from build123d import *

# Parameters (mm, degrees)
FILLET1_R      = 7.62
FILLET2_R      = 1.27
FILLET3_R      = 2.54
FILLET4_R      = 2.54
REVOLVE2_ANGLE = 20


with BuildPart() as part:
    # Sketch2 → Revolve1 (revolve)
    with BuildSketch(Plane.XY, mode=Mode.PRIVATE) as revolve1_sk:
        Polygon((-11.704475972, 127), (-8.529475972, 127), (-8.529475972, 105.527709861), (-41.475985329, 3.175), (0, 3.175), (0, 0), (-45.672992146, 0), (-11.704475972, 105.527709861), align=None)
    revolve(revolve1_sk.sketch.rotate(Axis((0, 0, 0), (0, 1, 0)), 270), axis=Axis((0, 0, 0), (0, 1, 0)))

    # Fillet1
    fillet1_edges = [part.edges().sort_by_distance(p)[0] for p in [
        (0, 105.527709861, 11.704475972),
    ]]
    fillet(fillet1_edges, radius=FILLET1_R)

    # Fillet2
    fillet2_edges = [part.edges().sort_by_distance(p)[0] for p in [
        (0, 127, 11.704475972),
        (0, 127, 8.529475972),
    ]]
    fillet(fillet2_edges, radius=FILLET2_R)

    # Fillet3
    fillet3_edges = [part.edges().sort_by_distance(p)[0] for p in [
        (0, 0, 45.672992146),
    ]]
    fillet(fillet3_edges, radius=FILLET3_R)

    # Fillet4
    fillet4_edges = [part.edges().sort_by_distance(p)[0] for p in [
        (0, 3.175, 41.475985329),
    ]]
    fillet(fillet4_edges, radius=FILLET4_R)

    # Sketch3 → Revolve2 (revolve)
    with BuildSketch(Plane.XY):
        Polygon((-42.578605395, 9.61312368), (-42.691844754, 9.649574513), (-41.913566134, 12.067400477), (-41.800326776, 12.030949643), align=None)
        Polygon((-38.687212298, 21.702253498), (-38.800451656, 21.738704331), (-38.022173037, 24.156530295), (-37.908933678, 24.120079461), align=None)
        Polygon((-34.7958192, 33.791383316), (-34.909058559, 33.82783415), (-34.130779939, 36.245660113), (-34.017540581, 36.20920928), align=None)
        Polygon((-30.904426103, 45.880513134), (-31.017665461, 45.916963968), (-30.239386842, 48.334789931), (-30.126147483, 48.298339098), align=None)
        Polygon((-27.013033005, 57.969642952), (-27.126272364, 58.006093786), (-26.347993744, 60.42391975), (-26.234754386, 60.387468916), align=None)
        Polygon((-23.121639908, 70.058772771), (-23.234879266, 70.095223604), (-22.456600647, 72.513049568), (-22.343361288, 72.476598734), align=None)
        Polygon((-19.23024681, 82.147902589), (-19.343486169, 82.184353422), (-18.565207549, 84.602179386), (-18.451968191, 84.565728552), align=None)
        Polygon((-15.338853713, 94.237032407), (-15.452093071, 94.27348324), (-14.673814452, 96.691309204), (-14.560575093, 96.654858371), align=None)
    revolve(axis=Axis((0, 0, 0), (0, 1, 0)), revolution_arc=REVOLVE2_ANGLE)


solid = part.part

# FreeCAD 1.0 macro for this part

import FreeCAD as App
import Part
import Sketcher
from FreeCAD import Vector
Q = App.Units.Quantity


def edges_at(feature, points):
    """Names of the edges that pass closest to the given points."""
    edges = feature.Shape.Edges
    near = lambda p: min(range(len(edges)), key=lambda i: edges[i].distToShape(Part.Vertex(*p))[0])
    return sorted({f"Edge{near(p) + 1}" for p in points})


def add_polygon(sketch, points):
    """Adds a closed chain of lines whose ends are joined by coincident constraints."""
    first, n = sketch.GeometryCount, len(points)
    for a, b in zip(points, points[1:] + points[:1]):
        sketch.addGeometry(Part.LineSegment(App.Vector(*a, 0), App.Vector(*b, 0)), False)
    for i in range(n):
        sketch.addConstraint(Sketcher.Constraint("Coincident", first + i, 2, first + (i + 1) % n, 1))

doc = App.newDocument("Part")
body = doc.addObject("PartDesign::Body", "Body")

# Sketch on XY plane
sketch1 = body.newObject("Sketcher::SketchObject", "Sketch")
sketch1.AttachmentSupport = (doc.getObject("XY_Plane"), [""])
sketch1.MapMode = "FlatFace"
add_polygon(sketch1, [(-8.5, 127), (-11.7, 127), (-11.7, 105.5), (-45.7, 0), (0, 0), (0, 3.2), (-41.5, 3.2), (-8.5, 105.5)])  # lines 0-7
sketch1.addConstraint(Sketcher.Constraint("Horizontal", 0))
sketch1.addConstraint(Sketcher.Constraint("Vertical", 1))
sketch1.addConstraint(Sketcher.Constraint("Horizontal", 3))
sketch1.addConstraint(Sketcher.Constraint("Vertical", 4))
sketch1.addConstraint(Sketcher.Constraint("Horizontal", 5))
sketch1.addConstraint(Sketcher.Constraint("Vertical", 7))
sketch1.addConstraint(Sketcher.Constraint("Coincident", 3, 2, -1, 1))
sketch1.addConstraint(Sketcher.Constraint("Parallel", 2, 6))
sketch1.addConstraint(Sketcher.Constraint("Horizontal", 1, 2, 6, 2))
sketch1.addConstraint(Sketcher.Constraint("Equal", 0, 4))
sketch1.addConstraint(Sketcher.Constraint("DistanceY", -1, 1, 0, 2, Q("5 in")))
sketch1.addConstraint(Sketcher.Constraint("DistanceX", 0, 2, 0, 1, Q("0.125 in")))
sketch1.addConstraint(Sketcher.Constraint("DistanceY", 1, 2, 1, 1, Q("21.47229 mm")))
sketch1.addConstraint(Sketcher.Constraint("Distance", 2, Q("110.860081 mm")))
sketch1.addConstraint(Sketcher.Constraint("DistanceX", 3, 1, 3, 2, Q("45.672992 mm")))
revolution = body.newObject("PartDesign::Revolution", "Revolution")
revolution.Profile = sketch1
revolution.ReferenceAxis = (sketch1, ["V_Axis"])
revolution.Angle = 360
doc.recompute()

fillet = body.newObject("PartDesign::Fillet", "Fillet")
fillet.Base = (revolution, edges_at(revolution, [(0, 105.528, 11.704)]))
fillet.Radius = Q("0.3 in")
doc.recompute()

fillet2 = body.newObject("PartDesign::Fillet", "Fillet001")
fillet2.Base = (fillet, edges_at(fillet, [(0, 127, 11.704), (0, 127, 8.529)]))
fillet2.Radius = Q("0.05 in")
doc.recompute()

fillet3 = body.newObject("PartDesign::Fillet", "Fillet002")
fillet3.Base = (fillet2, edges_at(fillet2, [(0, 0, 45.673)]))
fillet3.Radius = Q("0.1 in")
doc.recompute()

fillet4 = body.newObject("PartDesign::Fillet", "Fillet003")
fillet4.Base = (fillet3, edges_at(fillet3, [(0, 3.175, 41.476)]))
fillet4.Radius = Q("0.1 in")

# Sketch on XY plane
sketch2 = body.newObject("Sketcher::SketchObject", "Sketch001")
sketch2.AttachmentSupport = (doc.getObject("XY_Plane"), [""])
sketch2.MapMode = "FlatFace"
add_polygon(sketch2, [(-42.691845, 9.649575), (-42.578605, 9.613124), (-41.800327, 12.03095), (-41.913566, 12.0674)])  # lines 0-3
add_polygon(sketch2, [(-38.800452, 21.738704), (-38.687212, 21.702253), (-37.908934, 24.120079), (-38.022173, 24.15653)])  # lines 4-7
add_polygon(sketch2, [(-34.909059, 33.827834), (-34.795819, 33.791383), (-34.017541, 36.209209), (-34.13078, 36.24566)])  # lines 8-11
add_polygon(sketch2, [(-31.017665, 45.916964), (-30.904426, 45.880513), (-30.126147, 48.298339), (-30.239387, 48.33479)])  # lines 12-15
add_polygon(sketch2, [(-27.126272, 58.006094), (-27.013033, 57.969643), (-26.234754, 60.387469), (-26.347994, 60.42392)])  # lines 16-19
add_polygon(sketch2, [(-23.234879, 70.095224), (-23.12164, 70.058773), (-22.343361, 72.476599), (-22.456601, 72.51305)])  # lines 20-23
add_polygon(sketch2, [(-19.343486, 82.184353), (-19.230247, 82.147903), (-18.451968, 84.565729), (-18.565208, 84.602179)])  # lines 24-27
add_polygon(sketch2, [(-15.452093, 94.273483), (-15.338854, 94.237032), (-14.560575, 96.654858), (-14.673814, 96.691309)])  # lines 28-31
sketch2.addConstraint(Sketcher.Constraint("Distance", 1, Q("0.1 in")))
sketch2.addConstraint(Sketcher.Constraint("Distance", 3, Q("0.1 in")))
sketch2.addConstraint(Sketcher.Constraint("Distance", 5, Q("0.1 in")))
sketch2.addConstraint(Sketcher.Constraint("Distance", 7, Q("0.1 in")))
sketch2.addConstraint(Sketcher.Constraint("Distance", 9, Q("0.1 in")))
sketch2.addConstraint(Sketcher.Constraint("Distance", 11, Q("0.1 in")))
sketch2.addConstraint(Sketcher.Constraint("Distance", 13, Q("0.1 in")))
sketch2.addConstraint(Sketcher.Constraint("Distance", 15, Q("0.1 in")))
sketch2.addConstraint(Sketcher.Constraint("Distance", 17, Q("0.1 in")))
sketch2.addConstraint(Sketcher.Constraint("Distance", 19, Q("0.1 in")))
sketch2.addConstraint(Sketcher.Constraint("Distance", 21, Q("0.1 in")))
sketch2.addConstraint(Sketcher.Constraint("Distance", 23, Q("0.1 in")))
sketch2.addConstraint(Sketcher.Constraint("Distance", 25, Q("0.1 in")))
sketch2.addConstraint(Sketcher.Constraint("Distance", 27, Q("0.1 in")))
sketch2.addConstraint(Sketcher.Constraint("Distance", 29, Q("0.1 in")))
sketch2.addConstraint(Sketcher.Constraint("Distance", 31, Q("0.1 in")))
sketch2.addConstraint(Sketcher.Constraint("DistanceY", -1, 1, 2, 2, Q("12.0674 mm")))
sketch2.addConstraint(Sketcher.Constraint("DistanceY", -1, 1, 21, 2, Q("72.476599 mm")))
sketch2.addConstraint(Sketcher.Constraint("DistanceX", 22, 2, -1, 1, Q("22.456601 mm")))
sketch2.addConstraint(Sketcher.Constraint("Distance", 0, Q("0.118961 mm")))
sketch2.addConstraint(Sketcher.Constraint("Distance", 2, Q("0.118961 mm")))
sketch2.addConstraint(Sketcher.Constraint("Distance", 4, Q("0.118961 mm")))
sketch2.addConstraint(Sketcher.Constraint("Distance", 6, Q("0.118961 mm")))
sketch2.addConstraint(Sketcher.Constraint("Distance", 8, Q("0.118961 mm")))
sketch2.addConstraint(Sketcher.Constraint("Distance", 10, Q("0.118961 mm")))
sketch2.addConstraint(Sketcher.Constraint("Distance", 12, Q("0.118961 mm")))
sketch2.addConstraint(Sketcher.Constraint("Distance", 14, Q("0.118961 mm")))
sketch2.addConstraint(Sketcher.Constraint("Distance", 16, Q("0.118961 mm")))
sketch2.addConstraint(Sketcher.Constraint("Distance", 18, Q("0.118961 mm")))
sketch2.addConstraint(Sketcher.Constraint("Distance", 20, Q("0.118961 mm")))
sketch2.addConstraint(Sketcher.Constraint("Distance", 22, Q("0.118961 mm")))
sketch2.addConstraint(Sketcher.Constraint("Distance", 24, Q("0.118961 mm")))
sketch2.addConstraint(Sketcher.Constraint("Distance", 26, Q("0.118961 mm")))
sketch2.addConstraint(Sketcher.Constraint("Distance", 28, Q("0.118961 mm")))
sketch2.addConstraint(Sketcher.Constraint("Distance", 30, Q("0.118961 mm")))
sketch2.addConstraint(Sketcher.Constraint("DistanceY", -1, 1, 1, 2, Q("12.03095 mm")))
sketch2.addConstraint(Sketcher.Constraint("DistanceY", -1, 1, 5, 2, Q("24.120079 mm")))
sketch2.addConstraint(Sketcher.Constraint("DistanceY", -1, 1, 6, 2, Q("24.15653 mm")))
sketch2.addConstraint(Sketcher.Constraint("DistanceX", 7, 2, -1, 1, Q("38.800452 mm")))
sketch2.addConstraint(Sketcher.Constraint("DistanceX", 8, 2, -1, 1, Q("34.795819 mm")))
sketch2.addConstraint(Sketcher.Constraint("DistanceX", 9, 2, -1, 1, Q("34.017541 mm")))
sketch2.addConstraint(Sketcher.Constraint("DistanceY", -1, 1, 9, 2, Q("36.209209 mm")))
sketch2.addConstraint(Sketcher.Constraint("DistanceX", 10, 2, -1, 1, Q("34.13078 mm")))
sketch2.addConstraint(Sketcher.Constraint("DistanceY", -1, 1, 13, 2, Q("48.298339 mm")))
sketch2.addConstraint(Sketcher.Constraint("DistanceY", -1, 1, 14, 2, Q("48.33479 mm")))
sketch2.addConstraint(Sketcher.Constraint("DistanceY", -1, 1, 17, 2, Q("60.387469 mm")))
sketch2.addConstraint(Sketcher.Constraint("DistanceY", -1, 1, 18, 2, Q("60.42392 mm")))
sketch2.addConstraint(Sketcher.Constraint("DistanceX", 20, 2, -1, 1, Q("23.12164 mm")))
sketch2.addConstraint(Sketcher.Constraint("DistanceX", 21, 2, -1, 1, Q("22.343361 mm")))
sketch2.addConstraint(Sketcher.Constraint("DistanceX", 25, 2, -1, 1, Q("18.451968 mm")))
sketch2.addConstraint(Sketcher.Constraint("DistanceY", -1, 1, 25, 2, Q("84.565729 mm")))
sketch2.addConstraint(Sketcher.Constraint("DistanceY", -1, 1, 26, 2, Q("84.602179 mm")))
sketch2.addConstraint(Sketcher.Constraint("DistanceY", -1, 1, 29, 2, Q("96.654858 mm")))
sketch2.addConstraint(Sketcher.Constraint("DistanceY", -1, 1, 30, 2, Q("96.691309 mm")))
sketch2.addConstraint(Sketcher.Constraint("DistanceX", 0, 2, 1, 2, Q("0.778279 mm")))
sketch2.addConstraint(Sketcher.Constraint("DistanceY", 0, 2, 4, 2, Q("12.08913 mm")))
sketch2.addConstraint(Sketcher.Constraint("DistanceX", 0, 2, 5, 2, Q("4.669672 mm")))
sketch2.addConstraint(Sketcher.Constraint("DistanceY", 8, 2, 12, 2, Q("12.08913 mm")))
sketch2.addConstraint(Sketcher.Constraint("DistanceX", 8, 2, 13, 2, Q("4.669672 mm")))
sketch2.addConstraint(Sketcher.Constraint("DistanceY", 12, 2, 16, 2, Q("12.08913 mm")))
sketch2.addConstraint(Sketcher.Constraint("DistanceX", 12, 2, 17, 2, Q("4.669672 mm")))
sketch2.addConstraint(Sketcher.Constraint("DistanceY", 20, 2, 24, 2, Q("12.08913 mm")))
sketch2.addConstraint(Sketcher.Constraint("DistanceY", 24, 2, 28, 2, Q("12.08913 mm")))
sketch2.addConstraint(Sketcher.Constraint("DistanceX", 24, 2, 29, 2, Q("4.669672 mm")))
revolution2 = body.newObject("PartDesign::Revolution", "Revolution001")
revolution2.Profile = sketch2
revolution2.ReferenceAxis = (sketch2, ["V_Axis"])
revolution2.Angle = 20

doc.recompute()
